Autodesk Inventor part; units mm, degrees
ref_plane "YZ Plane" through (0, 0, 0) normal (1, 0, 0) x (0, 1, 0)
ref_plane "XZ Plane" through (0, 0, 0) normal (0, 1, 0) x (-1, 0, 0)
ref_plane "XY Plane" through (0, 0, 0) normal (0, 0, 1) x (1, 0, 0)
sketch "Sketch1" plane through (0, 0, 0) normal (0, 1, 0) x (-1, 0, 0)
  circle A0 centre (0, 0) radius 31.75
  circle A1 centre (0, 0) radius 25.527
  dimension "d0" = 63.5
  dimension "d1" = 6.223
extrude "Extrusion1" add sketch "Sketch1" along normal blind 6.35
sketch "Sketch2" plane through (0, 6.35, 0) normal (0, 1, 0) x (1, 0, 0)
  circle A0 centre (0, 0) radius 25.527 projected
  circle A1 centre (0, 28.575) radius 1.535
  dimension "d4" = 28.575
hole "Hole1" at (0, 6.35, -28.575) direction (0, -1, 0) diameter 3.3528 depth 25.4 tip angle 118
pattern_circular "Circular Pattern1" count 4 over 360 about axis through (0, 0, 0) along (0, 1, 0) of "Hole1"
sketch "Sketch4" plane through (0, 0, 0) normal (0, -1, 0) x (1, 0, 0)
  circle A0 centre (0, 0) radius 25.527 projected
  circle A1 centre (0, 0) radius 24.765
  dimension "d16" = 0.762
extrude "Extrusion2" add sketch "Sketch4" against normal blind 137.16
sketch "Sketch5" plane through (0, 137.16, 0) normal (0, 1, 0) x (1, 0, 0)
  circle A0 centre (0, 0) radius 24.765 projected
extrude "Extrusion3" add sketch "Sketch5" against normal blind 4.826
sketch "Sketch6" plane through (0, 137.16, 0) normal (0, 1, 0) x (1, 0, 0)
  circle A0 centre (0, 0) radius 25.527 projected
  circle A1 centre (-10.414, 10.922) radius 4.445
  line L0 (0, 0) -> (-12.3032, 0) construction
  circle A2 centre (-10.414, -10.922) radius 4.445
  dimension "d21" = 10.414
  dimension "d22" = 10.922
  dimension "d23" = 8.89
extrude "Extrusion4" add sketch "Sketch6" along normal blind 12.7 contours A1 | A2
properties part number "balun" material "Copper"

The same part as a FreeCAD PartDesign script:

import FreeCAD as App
import Part
import Sketcher
from FreeCAD import Vector
Q = App.Units.Quantity

doc = App.newDocument("Part")
params = doc.addObject("Spreadsheet::Sheet", "Params")
for row, (alias, value) in enumerate([
    ("sketch1_diameter", "2.5 in"),
    ("sketch1_diameter2", "2.01 in"),
    ("pad1_length", "0.25 in"),
    ("sketch2_diameter", "0.132 in"),
    ("hole_diameter", "0.132 in"),
    ("hole_depth", "1 in"),
    ("sketch3_diameter", "2.01 in"),
    ("sketch3_diameter2", "1.95 in"),
    ("pad2_length", "5.4 in"),
    ("sketch4_diameter", "1.95 in"),
    ("pad3_length", "0.19 in"),
    ("sketch5_diameter", "0.35 in"),
    ("pad4_length", "0.5 in"),
], start=1):
    params.set(f"A{row}", alias)
    params.set(f"B{row}", "=" + value)
    params.setAlias(f"B{row}", alias)

body = doc.addObject("PartDesign::Body", "Body")

sketch1 = body.newObject("Sketcher::SketchObject", "Sketch")
sketch1.AttachmentSupport = (doc.getObject("XZ_Plane"), [""])
sketch1.MapMode = "FlatFace"
sketch1.addGeometry(Part.Circle(Vector(0, 0, 0), Vector(0, 0, 1), 32), False)
sketch1.addGeometry(Part.Circle(Vector(0, 0, 0), Vector(0, 0, 1), 26), False)
sketch1.addConstraint(Sketcher.Constraint("Coincident", 0, 3, -1, 1))
sketch1.addConstraint(Sketcher.Constraint("Coincident", 1, 3, -1, 1))
sketch1.addConstraint(Sketcher.Constraint("Diameter", 0, Q("2.5 in")))
sketch1.addConstraint(Sketcher.Constraint("Diameter", 1, Q("2.01 in")))
sketch1.setExpression("Constraints[2]", "Params.sketch1_diameter")
sketch1.setExpression("Constraints[3]", "Params.sketch1_diameter2")
pad1 = body.newObject("PartDesign::Pad", "Pad")
pad1.Profile = sketch1
pad1.setExpression("Length", "Params.pad1_length")
pad1.Reversed = True

sketch2 = body.newObject("Sketcher::SketchObject", "Sketch001")
sketch2.AttachmentSupport = (doc.getObject("XZ_Plane"), [""])
sketch2.MapMode = "FlatFace"
sketch2.AttachmentOffset = App.Placement(Vector(0, 0, -0.25 * 25.4), App.Rotation())
sketch2.addGeometry(Part.Circle(Vector(0, -28.6, 0), Vector(0, 0, 1), 1.7), False)
sketch2.addConstraint(Sketcher.Constraint("PointOnObject", 0, 3, -2))
sketch2.addConstraint(Sketcher.Constraint("Diameter", 0, Q("0.132 in")))
sketch2.addConstraint(Sketcher.Constraint("DistanceY", 0, 3, -1, 1, Q("1.125 in")))
sketch2.setExpression("Constraints[1]", "Params.sketch2_diameter")
doc.recompute()
hole = body.newObject("PartDesign::Hole", "Hole")
hole.Profile = sketch2
hole.ThreadType = "None"
hole.setExpression("Diameter", "Params.hole_diameter")
hole.DepthType = "Dimension"
hole.setExpression("Depth", "Params.hole_depth")
hole.DrillPoint = "Angled"
hole.DrillPointAngle = 118
hole.Reversed = True
doc.recompute()

polarpattern = body.newObject("PartDesign::PolarPattern", "PolarPattern")
polarpattern.Originals = [hole]
polarpattern.Axis = (doc.getObject("Y_Axis"), [""])
polarpattern.Angle = 360
polarpattern.Occurrences = 4
body.Tip = polarpattern

sketch3 = body.newObject("Sketcher::SketchObject", "Sketch002")
sketch3.AttachmentSupport = (doc.getObject("XZ_Plane"), [""])
sketch3.MapMode = "FlatFace"
sketch3.addGeometry(Part.Circle(Vector(0, 0, 0), Vector(0, 0, 1), 26), False)
sketch3.addGeometry(Part.Circle(Vector(0, 0, 0), Vector(0, 0, 1), 25), False)
sketch3.addConstraint(Sketcher.Constraint("Coincident", 0, 3, -1, 1))
sketch3.addConstraint(Sketcher.Constraint("Coincident", 1, 3, -1, 1))
sketch3.addConstraint(Sketcher.Constraint("Diameter", 0, Q("2.01 in")))
sketch3.addConstraint(Sketcher.Constraint("Diameter", 1, Q("1.95 in")))
sketch3.setExpression("Constraints[2]", "Params.sketch3_diameter")
sketch3.setExpression("Constraints[3]", "Params.sketch3_diameter2")
pad2 = body.newObject("PartDesign::Pad", "Pad001")
pad2.Profile = sketch3
pad2.setExpression("Length", "Params.pad2_length")
pad2.Reversed = True

sketch4 = body.newObject("Sketcher::SketchObject", "Sketch003")
sketch4.AttachmentSupport = (doc.getObject("XZ_Plane"), [""])
sketch4.MapMode = "FlatFace"
sketch4.AttachmentOffset = App.Placement(Vector(0, 0, -5.4 * 25.4), App.Rotation())
sketch4.addGeometry(Part.Circle(Vector(0, 0, 0), Vector(0, 0, 1), 25), False)
sketch4.addConstraint(Sketcher.Constraint("Coincident", 0, 3, -1, 1))
sketch4.addConstraint(Sketcher.Constraint("Diameter", 0, Q("1.95 in")))
sketch4.setExpression("Constraints[1]", "Params.sketch4_diameter")
pad3 = body.newObject("PartDesign::Pad", "Pad002")
pad3.Profile = sketch4
pad3.setExpression("Length", "Params.pad3_length")

sketch5 = body.newObject("Sketcher::SketchObject", "Sketch004")
sketch5.AttachmentSupport = (doc.getObject("XZ_Plane"), [""])
sketch5.MapMode = "FlatFace"
sketch5.AttachmentOffset = App.Placement(Vector(0, 0, -5.4 * 25.4), App.Rotation())
sketch5.addGeometry(Part.Circle(Vector(-10.4, -10.9, 0), Vector(0, 0, 1), 4.4), False)
sketch5.addGeometry(Part.Circle(Vector(-10.4, 10.9, 0), Vector(0, 0, 1), 4.4), False)
sketch5.addConstraint(Sketcher.Constraint("Equal", 0, 1))
sketch5.addConstraint(Sketcher.Constraint("Symmetric", 0, 3, 1, 3, -1))
sketch5.addConstraint(Sketcher.Constraint("Diameter", 0, Q("0.35 in")))
sketch5.addConstraint(Sketcher.Constraint("DistanceX", 0, 3, -1, 1, Q("0.41 in")))
sketch5.addConstraint(Sketcher.Constraint("DistanceY", 0, 3, -1, 1, Q("0.43 in")))
sketch5.setExpression("Constraints[2]", "Params.sketch5_diameter")
pad4 = body.newObject("PartDesign::Pad", "Pad003")
pad4.Profile = sketch5
pad4.setExpression("Length", "Params.pad4_length")
pad4.Reversed = True

doc.recompute()
